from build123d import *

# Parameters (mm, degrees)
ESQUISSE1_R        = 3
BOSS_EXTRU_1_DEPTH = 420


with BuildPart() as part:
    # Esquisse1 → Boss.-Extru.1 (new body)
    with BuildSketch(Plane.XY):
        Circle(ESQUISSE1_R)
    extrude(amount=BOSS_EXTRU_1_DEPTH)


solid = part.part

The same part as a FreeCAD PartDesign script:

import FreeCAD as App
import Part
import Sketcher

doc = App.newDocument("Part")
body = doc.addObject("PartDesign::Body", "Body")

# Sketch on XY plane
sketch1 = body.newObject("Sketcher::SketchObject", "Sketch")
sketch1.AttachmentSupport = (doc.getObject("XY_Plane"), [""])
sketch1.MapMode = "FlatFace"
sketch1.addGeometry(Part.Circle(App.Vector(0, 0, 0), App.Vector(0, 0, 1), 3), False)
sketch1.addConstraint(Sketcher.Constraint("Coincident", 0, 3, -1, 1))
sketch1.addConstraint(Sketcher.Constraint("Diameter", 0, 6.0))
pad1 = body.newObject("PartDesign::Pad", "Pad")
pad1.Profile = sketch1
pad1.Length = 420

doc.recompute()
